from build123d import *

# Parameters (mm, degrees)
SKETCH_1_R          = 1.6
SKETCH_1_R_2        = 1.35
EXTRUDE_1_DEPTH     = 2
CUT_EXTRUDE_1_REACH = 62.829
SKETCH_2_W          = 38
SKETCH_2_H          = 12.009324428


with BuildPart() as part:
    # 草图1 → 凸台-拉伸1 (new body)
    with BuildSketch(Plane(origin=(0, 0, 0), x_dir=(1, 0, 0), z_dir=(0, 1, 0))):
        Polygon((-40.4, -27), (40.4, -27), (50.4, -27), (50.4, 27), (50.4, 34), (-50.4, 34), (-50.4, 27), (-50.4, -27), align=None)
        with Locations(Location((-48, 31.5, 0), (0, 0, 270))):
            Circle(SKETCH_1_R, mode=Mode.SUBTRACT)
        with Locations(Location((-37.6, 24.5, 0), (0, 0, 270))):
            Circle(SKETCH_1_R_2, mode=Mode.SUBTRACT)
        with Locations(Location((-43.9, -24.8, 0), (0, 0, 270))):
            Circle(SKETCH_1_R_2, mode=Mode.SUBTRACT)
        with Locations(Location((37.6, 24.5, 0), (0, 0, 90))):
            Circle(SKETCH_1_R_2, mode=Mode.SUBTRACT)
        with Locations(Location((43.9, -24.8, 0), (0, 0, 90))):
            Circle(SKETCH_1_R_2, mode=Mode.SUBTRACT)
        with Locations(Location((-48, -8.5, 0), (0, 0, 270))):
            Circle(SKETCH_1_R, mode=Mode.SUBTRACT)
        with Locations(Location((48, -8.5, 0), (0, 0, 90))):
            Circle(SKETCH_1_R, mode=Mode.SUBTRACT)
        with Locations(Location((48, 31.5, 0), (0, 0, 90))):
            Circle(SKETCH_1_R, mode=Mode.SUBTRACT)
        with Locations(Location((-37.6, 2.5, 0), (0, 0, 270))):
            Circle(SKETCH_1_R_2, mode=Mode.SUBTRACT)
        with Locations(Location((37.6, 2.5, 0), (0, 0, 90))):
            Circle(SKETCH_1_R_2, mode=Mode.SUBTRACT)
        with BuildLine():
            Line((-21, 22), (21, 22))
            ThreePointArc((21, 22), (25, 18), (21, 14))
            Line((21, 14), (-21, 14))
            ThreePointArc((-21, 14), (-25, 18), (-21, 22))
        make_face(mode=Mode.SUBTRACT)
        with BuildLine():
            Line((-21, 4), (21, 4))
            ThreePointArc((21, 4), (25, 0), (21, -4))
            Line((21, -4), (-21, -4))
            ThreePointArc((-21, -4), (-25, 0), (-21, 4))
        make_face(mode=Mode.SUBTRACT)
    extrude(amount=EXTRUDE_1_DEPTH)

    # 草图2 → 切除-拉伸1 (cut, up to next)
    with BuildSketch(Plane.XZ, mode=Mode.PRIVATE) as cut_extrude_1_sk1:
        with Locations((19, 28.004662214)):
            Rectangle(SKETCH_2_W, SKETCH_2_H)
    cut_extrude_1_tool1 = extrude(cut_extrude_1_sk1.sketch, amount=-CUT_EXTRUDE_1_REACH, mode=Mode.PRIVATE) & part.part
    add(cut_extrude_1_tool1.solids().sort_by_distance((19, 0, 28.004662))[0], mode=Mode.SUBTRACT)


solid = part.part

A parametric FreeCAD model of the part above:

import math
import FreeCAD as App
import Part
import Sketcher

doc = App.newDocument("Part")
body = doc.addObject("PartDesign::Body", "Body")

# Sketch on XZ plane
sketch1 = doc.addObject("Sketcher::SketchObject", "Sketch")
body.addObject(sketch1)
sketch1.AttachmentSupport = (doc.XZ_Plane, [""])
sketch1.MapMode = "FlatFace"
sketch1.addGeometry(Part.LineSegment(App.Vector(50.4, 27, 0), App.Vector(50.4, -34, 0)), False)
sketch1.addGeometry(Part.LineSegment(App.Vector(50.4, -34, 0), App.Vector(-50.4, -34, 0)), False)
sketch1.addGeometry(Part.LineSegment(App.Vector(-50.4, -34, 0), App.Vector(-50.4, 27, 0)), False)
sketch1.addGeometry(Part.LineSegment(App.Vector(-50.4, 27, 0), App.Vector(50.4, 27, 0)), False)
sketch1.addGeometry(Part.Circle(App.Vector(-43.9, 24.8, 0), App.Vector(0, 0, 1), 1.35), False)
sketch1.addGeometry(Part.Circle(App.Vector(-48, 8.5, 0), App.Vector(0, 0, 1), 1.6), False)
sketch1.addGeometry(Part.Circle(App.Vector(-37.6, -2.5, 0), App.Vector(0, 0, 1), 1.35), False)
sketch1.addGeometry(Part.Circle(App.Vector(43.9, 24.8, 0), App.Vector(0, 0, 1), 1.35), False)
sketch1.addGeometry(Part.ArcOfCircle(Part.Circle(App.Vector(-21, 0, 0), App.Vector(0, 0, 1), 4), math.radians(90), math.radians(270)), False)
sketch1.addGeometry(Part.LineSegment(App.Vector(-21, -4, 0), App.Vector(21, -4, 0)), False)
sketch1.addGeometry(Part.ArcOfCircle(Part.Circle(App.Vector(21, 0, 0), App.Vector(0, 0, 1), 4), math.radians(-90), math.radians(90)), False)
sketch1.addGeometry(Part.LineSegment(App.Vector(21, 4, 0), App.Vector(-21, 4, 0)), False)
sketch1.addGeometry(Part.Circle(App.Vector(48, 8.5, 0), App.Vector(0, 0, 1), 1.6), False)
sketch1.addGeometry(Part.Circle(App.Vector(37.6, -2.5, 0), App.Vector(0, 0, 1), 1.35), False)
sketch1.addGeometry(Part.Circle(App.Vector(-37.6, -24.5, 0), App.Vector(0, 0, 1), 1.35), False)
sketch1.addGeometry(Part.Circle(App.Vector(-48, -31.5, 0), App.Vector(0, 0, 1), 1.6), False)
sketch1.addGeometry(Part.ArcOfCircle(Part.Circle(App.Vector(-21, -18, 0), App.Vector(0, 0, 1), 4), math.radians(90), math.radians(270)), False)
sketch1.addGeometry(Part.LineSegment(App.Vector(-21, -22, 0), App.Vector(21, -22, 0)), False)
sketch1.addGeometry(Part.ArcOfCircle(Part.Circle(App.Vector(21, -18, 0), App.Vector(0, 0, 1), 4), math.radians(-90), math.radians(90)), False)
sketch1.addGeometry(Part.LineSegment(App.Vector(21, -14, 0), App.Vector(-21, -14, 0)), False)
sketch1.addGeometry(Part.Circle(App.Vector(37.6, -24.5, 0), App.Vector(0, 0, 1), 1.35), False)
sketch1.addGeometry(Part.Circle(App.Vector(48, -31.5, 0), App.Vector(0, 0, 1), 1.6), False)
sketch1.addConstraint(Sketcher.Constraint("Coincident", 0, 2, 1, 1))
sketch1.addConstraint(Sketcher.Constraint("Coincident", 1, 2, 2, 1))
sketch1.addConstraint(Sketcher.Constraint("Coincident", 2, 2, 3, 1))
sketch1.addConstraint(Sketcher.Constraint("Coincident", 3, 2, 0, 1))
sketch1.addConstraint(Sketcher.Constraint("Tangent", 8, 2, 9, 1))
sketch1.addConstraint(Sketcher.Constraint("Tangent", 9, 2, 10, 1))
sketch1.addConstraint(Sketcher.Constraint("Tangent", 10, 2, 11, 1))
sketch1.addConstraint(Sketcher.Constraint("Tangent", 11, 2, 8, 1))
sketch1.addConstraint(Sketcher.Constraint("Tangent", 16, 2, 17, 1))
sketch1.addConstraint(Sketcher.Constraint("Tangent", 17, 2, 18, 1))
sketch1.addConstraint(Sketcher.Constraint("Tangent", 18, 2, 19, 1))
sketch1.addConstraint(Sketcher.Constraint("Tangent", 19, 2, 16, 1))
sketch1.addConstraint(Sketcher.Constraint("Vertical", 0))
sketch1.addConstraint(Sketcher.Constraint("Horizontal", 1))
sketch1.addConstraint(Sketcher.Constraint("Vertical", 2))
sketch1.addConstraint(Sketcher.Constraint("Horizontal", 3))
sketch1.addConstraint(Sketcher.Constraint("Horizontal", 9))
sketch1.addConstraint(Sketcher.Constraint("Horizontal", 11))
sketch1.addConstraint(Sketcher.Constraint("Horizontal", 17))
sketch1.addConstraint(Sketcher.Constraint("Horizontal", 19))
sketch1.addConstraint(Sketcher.Constraint("Equal", 4, 6))
sketch1.addConstraint(Sketcher.Constraint("Equal", 6, 7))
sketch1.addConstraint(Sketcher.Constraint("Equal", 5, 12))
sketch1.addConstraint(Sketcher.Constraint("Equal", 7, 13))
sketch1.addConstraint(Sketcher.Constraint("Equal", 13, 14))
sketch1.addConstraint(Sketcher.Constraint("Equal", 12, 15))
sketch1.addConstraint(Sketcher.Constraint("Equal", 10, 16))
sketch1.addConstraint(Sketcher.Constraint("Equal", 14, 20))
sketch1.addConstraint(Sketcher.Constraint("Equal", 15, 21))
sketch1.addConstraint(Sketcher.Constraint("Symmetric", 8, 3, 10, 3, -1, 1))
sketch1.addConstraint(Sketcher.Constraint("Symmetric", 4, 3, 7, 3, -2))
sketch1.addConstraint(Sketcher.Constraint("Symmetric", 5, 3, 12, 3, -2))
sketch1.addConstraint(Sketcher.Constraint("Symmetric", 6, 3, 13, 3, -2))
sketch1.addConstraint(Sketcher.Constraint("Symmetric", 14, 3, 20, 3, -2))
sketch1.addConstraint(Sketcher.Constraint("Symmetric", 15, 3, 21, 3, -2))
sketch1.addConstraint(Sketcher.Constraint("Vertical", 6, 3, 14, 3))
sketch1.addConstraint(Sketcher.Constraint("Vertical", 5, 3, 15, 3))
sketch1.addConstraint(Sketcher.Constraint("Vertical", 8, 3, 16, 3))
sketch1.addConstraint(Sketcher.Constraint("Vertical", 10, 3, 18, 3))
sketch1.addConstraint(Sketcher.Constraint("Radius", 8, 4.0))
sketch1.addConstraint(Sketcher.Constraint("Diameter", 4, 2.7))
sketch1.addConstraint(Sketcher.Constraint("Diameter", 5, 3.2))
sketch1.addConstraint(Sketcher.Constraint("DistanceX", 9, 1, 9, 2, 42.0))
sketch1.addConstraint(Sketcher.Constraint("DistanceY", 0, 2, 0, 1, 61.0))
sketch1.addConstraint(Sketcher.Constraint("DistanceX", 1, 2, 1, 1, 100.8))
sketch1.addConstraint(Sketcher.Constraint("DistanceX", 5, 3, -1, 1, 48.0))
sketch1.addConstraint(Sketcher.Constraint("DistanceY", 16, 3, -1, 1, 18.0))
sketch1.addConstraint(Sketcher.Constraint("DistanceY", 0, 2, -1, 1, 34.0))
sketch1.addConstraint(Sketcher.Constraint("DistanceY", 6, 3, 5, 3, 11.0))
sketch1.addConstraint(Sketcher.Constraint("DistanceY", 14, 3, 6, 3, 22.0))
sketch1.addConstraint(Sketcher.Constraint("DistanceY", 15, 3, 14, 3, 7.0))
sketch1.addConstraint(Sketcher.Constraint("DistanceX", 4, 3, -1, 1, 43.9))
sketch1.addConstraint(Sketcher.Constraint("DistanceY", -1, 1, 4, 3, 24.8))
sketch1.addConstraint(Sketcher.Constraint("DistanceY", -1, 1, 5, 3, 8.5))
sketch1.addConstraint(Sketcher.Constraint("DistanceX", 6, 3, -1, 1, 37.6))
sketch1.addConstraint(Sketcher.Constraint("DistanceX", -1, 1, 0, 2, 50.4))
pad1 = doc.addObject("PartDesign::Pad", "Pad")
body.addObject(pad1)
pad1.Profile = sketch1
pad1.Length = 2
pad1.Reversed = True

# Sketch on XZ plane
sketch2 = doc.addObject("Sketcher::SketchObject", "Sketch001")
body.addObject(sketch2)
sketch2.AttachmentSupport = (doc.XZ_Plane, [""])
sketch2.MapMode = "FlatFace"
sketch2.addGeometry(Part.LineSegment(App.Vector(0, 34.009324, 0), App.Vector(0, 22, 0)), False)
sketch2.addGeometry(Part.LineSegment(App.Vector(0, 22, 0), App.Vector(38, 22, 0)), False)
sketch2.addGeometry(Part.LineSegment(App.Vector(38, 22, 0), App.Vector(38, 34.009324, 0)), False)
sketch2.addGeometry(Part.LineSegment(App.Vector(38, 34.009324, 0), App.Vector(0, 34.009324, 0)), False)
sketch2.addConstraint(Sketcher.Constraint("Coincident", 0, 2, 1, 1))
sketch2.addConstraint(Sketcher.Constraint("Coincident", 1, 2, 2, 1))
sketch2.addConstraint(Sketcher.Constraint("Coincident", 2, 2, 3, 1))
sketch2.addConstraint(Sketcher.Constraint("Coincident", 3, 2, 0, 1))
sketch2.addConstraint(Sketcher.Constraint("Vertical", 0))
sketch2.addConstraint(Sketcher.Constraint("Horizontal", 1))
sketch2.addConstraint(Sketcher.Constraint("Vertical", 2))
sketch2.addConstraint(Sketcher.Constraint("Horizontal", 3))
sketch2.addConstraint(Sketcher.Constraint("PointOnObject", 0, 2, -2))
sketch2.addConstraint(Sketcher.Constraint("DistanceX", 1, 1, 1, 2, 38.0))
sketch2.addConstraint(Sketcher.Constraint("DistanceY", -1, 1, 0, 2, 22.0))
sketch2.addConstraint(Sketcher.Constraint("DistanceY", 0, 2, 0, 1, 12.009324))
pocket1 = doc.addObject("PartDesign::Pocket", "Pocket")
body.addObject(pocket1)
pocket1.Profile = sketch2
pocket1.Length = 2

doc.recompute()
